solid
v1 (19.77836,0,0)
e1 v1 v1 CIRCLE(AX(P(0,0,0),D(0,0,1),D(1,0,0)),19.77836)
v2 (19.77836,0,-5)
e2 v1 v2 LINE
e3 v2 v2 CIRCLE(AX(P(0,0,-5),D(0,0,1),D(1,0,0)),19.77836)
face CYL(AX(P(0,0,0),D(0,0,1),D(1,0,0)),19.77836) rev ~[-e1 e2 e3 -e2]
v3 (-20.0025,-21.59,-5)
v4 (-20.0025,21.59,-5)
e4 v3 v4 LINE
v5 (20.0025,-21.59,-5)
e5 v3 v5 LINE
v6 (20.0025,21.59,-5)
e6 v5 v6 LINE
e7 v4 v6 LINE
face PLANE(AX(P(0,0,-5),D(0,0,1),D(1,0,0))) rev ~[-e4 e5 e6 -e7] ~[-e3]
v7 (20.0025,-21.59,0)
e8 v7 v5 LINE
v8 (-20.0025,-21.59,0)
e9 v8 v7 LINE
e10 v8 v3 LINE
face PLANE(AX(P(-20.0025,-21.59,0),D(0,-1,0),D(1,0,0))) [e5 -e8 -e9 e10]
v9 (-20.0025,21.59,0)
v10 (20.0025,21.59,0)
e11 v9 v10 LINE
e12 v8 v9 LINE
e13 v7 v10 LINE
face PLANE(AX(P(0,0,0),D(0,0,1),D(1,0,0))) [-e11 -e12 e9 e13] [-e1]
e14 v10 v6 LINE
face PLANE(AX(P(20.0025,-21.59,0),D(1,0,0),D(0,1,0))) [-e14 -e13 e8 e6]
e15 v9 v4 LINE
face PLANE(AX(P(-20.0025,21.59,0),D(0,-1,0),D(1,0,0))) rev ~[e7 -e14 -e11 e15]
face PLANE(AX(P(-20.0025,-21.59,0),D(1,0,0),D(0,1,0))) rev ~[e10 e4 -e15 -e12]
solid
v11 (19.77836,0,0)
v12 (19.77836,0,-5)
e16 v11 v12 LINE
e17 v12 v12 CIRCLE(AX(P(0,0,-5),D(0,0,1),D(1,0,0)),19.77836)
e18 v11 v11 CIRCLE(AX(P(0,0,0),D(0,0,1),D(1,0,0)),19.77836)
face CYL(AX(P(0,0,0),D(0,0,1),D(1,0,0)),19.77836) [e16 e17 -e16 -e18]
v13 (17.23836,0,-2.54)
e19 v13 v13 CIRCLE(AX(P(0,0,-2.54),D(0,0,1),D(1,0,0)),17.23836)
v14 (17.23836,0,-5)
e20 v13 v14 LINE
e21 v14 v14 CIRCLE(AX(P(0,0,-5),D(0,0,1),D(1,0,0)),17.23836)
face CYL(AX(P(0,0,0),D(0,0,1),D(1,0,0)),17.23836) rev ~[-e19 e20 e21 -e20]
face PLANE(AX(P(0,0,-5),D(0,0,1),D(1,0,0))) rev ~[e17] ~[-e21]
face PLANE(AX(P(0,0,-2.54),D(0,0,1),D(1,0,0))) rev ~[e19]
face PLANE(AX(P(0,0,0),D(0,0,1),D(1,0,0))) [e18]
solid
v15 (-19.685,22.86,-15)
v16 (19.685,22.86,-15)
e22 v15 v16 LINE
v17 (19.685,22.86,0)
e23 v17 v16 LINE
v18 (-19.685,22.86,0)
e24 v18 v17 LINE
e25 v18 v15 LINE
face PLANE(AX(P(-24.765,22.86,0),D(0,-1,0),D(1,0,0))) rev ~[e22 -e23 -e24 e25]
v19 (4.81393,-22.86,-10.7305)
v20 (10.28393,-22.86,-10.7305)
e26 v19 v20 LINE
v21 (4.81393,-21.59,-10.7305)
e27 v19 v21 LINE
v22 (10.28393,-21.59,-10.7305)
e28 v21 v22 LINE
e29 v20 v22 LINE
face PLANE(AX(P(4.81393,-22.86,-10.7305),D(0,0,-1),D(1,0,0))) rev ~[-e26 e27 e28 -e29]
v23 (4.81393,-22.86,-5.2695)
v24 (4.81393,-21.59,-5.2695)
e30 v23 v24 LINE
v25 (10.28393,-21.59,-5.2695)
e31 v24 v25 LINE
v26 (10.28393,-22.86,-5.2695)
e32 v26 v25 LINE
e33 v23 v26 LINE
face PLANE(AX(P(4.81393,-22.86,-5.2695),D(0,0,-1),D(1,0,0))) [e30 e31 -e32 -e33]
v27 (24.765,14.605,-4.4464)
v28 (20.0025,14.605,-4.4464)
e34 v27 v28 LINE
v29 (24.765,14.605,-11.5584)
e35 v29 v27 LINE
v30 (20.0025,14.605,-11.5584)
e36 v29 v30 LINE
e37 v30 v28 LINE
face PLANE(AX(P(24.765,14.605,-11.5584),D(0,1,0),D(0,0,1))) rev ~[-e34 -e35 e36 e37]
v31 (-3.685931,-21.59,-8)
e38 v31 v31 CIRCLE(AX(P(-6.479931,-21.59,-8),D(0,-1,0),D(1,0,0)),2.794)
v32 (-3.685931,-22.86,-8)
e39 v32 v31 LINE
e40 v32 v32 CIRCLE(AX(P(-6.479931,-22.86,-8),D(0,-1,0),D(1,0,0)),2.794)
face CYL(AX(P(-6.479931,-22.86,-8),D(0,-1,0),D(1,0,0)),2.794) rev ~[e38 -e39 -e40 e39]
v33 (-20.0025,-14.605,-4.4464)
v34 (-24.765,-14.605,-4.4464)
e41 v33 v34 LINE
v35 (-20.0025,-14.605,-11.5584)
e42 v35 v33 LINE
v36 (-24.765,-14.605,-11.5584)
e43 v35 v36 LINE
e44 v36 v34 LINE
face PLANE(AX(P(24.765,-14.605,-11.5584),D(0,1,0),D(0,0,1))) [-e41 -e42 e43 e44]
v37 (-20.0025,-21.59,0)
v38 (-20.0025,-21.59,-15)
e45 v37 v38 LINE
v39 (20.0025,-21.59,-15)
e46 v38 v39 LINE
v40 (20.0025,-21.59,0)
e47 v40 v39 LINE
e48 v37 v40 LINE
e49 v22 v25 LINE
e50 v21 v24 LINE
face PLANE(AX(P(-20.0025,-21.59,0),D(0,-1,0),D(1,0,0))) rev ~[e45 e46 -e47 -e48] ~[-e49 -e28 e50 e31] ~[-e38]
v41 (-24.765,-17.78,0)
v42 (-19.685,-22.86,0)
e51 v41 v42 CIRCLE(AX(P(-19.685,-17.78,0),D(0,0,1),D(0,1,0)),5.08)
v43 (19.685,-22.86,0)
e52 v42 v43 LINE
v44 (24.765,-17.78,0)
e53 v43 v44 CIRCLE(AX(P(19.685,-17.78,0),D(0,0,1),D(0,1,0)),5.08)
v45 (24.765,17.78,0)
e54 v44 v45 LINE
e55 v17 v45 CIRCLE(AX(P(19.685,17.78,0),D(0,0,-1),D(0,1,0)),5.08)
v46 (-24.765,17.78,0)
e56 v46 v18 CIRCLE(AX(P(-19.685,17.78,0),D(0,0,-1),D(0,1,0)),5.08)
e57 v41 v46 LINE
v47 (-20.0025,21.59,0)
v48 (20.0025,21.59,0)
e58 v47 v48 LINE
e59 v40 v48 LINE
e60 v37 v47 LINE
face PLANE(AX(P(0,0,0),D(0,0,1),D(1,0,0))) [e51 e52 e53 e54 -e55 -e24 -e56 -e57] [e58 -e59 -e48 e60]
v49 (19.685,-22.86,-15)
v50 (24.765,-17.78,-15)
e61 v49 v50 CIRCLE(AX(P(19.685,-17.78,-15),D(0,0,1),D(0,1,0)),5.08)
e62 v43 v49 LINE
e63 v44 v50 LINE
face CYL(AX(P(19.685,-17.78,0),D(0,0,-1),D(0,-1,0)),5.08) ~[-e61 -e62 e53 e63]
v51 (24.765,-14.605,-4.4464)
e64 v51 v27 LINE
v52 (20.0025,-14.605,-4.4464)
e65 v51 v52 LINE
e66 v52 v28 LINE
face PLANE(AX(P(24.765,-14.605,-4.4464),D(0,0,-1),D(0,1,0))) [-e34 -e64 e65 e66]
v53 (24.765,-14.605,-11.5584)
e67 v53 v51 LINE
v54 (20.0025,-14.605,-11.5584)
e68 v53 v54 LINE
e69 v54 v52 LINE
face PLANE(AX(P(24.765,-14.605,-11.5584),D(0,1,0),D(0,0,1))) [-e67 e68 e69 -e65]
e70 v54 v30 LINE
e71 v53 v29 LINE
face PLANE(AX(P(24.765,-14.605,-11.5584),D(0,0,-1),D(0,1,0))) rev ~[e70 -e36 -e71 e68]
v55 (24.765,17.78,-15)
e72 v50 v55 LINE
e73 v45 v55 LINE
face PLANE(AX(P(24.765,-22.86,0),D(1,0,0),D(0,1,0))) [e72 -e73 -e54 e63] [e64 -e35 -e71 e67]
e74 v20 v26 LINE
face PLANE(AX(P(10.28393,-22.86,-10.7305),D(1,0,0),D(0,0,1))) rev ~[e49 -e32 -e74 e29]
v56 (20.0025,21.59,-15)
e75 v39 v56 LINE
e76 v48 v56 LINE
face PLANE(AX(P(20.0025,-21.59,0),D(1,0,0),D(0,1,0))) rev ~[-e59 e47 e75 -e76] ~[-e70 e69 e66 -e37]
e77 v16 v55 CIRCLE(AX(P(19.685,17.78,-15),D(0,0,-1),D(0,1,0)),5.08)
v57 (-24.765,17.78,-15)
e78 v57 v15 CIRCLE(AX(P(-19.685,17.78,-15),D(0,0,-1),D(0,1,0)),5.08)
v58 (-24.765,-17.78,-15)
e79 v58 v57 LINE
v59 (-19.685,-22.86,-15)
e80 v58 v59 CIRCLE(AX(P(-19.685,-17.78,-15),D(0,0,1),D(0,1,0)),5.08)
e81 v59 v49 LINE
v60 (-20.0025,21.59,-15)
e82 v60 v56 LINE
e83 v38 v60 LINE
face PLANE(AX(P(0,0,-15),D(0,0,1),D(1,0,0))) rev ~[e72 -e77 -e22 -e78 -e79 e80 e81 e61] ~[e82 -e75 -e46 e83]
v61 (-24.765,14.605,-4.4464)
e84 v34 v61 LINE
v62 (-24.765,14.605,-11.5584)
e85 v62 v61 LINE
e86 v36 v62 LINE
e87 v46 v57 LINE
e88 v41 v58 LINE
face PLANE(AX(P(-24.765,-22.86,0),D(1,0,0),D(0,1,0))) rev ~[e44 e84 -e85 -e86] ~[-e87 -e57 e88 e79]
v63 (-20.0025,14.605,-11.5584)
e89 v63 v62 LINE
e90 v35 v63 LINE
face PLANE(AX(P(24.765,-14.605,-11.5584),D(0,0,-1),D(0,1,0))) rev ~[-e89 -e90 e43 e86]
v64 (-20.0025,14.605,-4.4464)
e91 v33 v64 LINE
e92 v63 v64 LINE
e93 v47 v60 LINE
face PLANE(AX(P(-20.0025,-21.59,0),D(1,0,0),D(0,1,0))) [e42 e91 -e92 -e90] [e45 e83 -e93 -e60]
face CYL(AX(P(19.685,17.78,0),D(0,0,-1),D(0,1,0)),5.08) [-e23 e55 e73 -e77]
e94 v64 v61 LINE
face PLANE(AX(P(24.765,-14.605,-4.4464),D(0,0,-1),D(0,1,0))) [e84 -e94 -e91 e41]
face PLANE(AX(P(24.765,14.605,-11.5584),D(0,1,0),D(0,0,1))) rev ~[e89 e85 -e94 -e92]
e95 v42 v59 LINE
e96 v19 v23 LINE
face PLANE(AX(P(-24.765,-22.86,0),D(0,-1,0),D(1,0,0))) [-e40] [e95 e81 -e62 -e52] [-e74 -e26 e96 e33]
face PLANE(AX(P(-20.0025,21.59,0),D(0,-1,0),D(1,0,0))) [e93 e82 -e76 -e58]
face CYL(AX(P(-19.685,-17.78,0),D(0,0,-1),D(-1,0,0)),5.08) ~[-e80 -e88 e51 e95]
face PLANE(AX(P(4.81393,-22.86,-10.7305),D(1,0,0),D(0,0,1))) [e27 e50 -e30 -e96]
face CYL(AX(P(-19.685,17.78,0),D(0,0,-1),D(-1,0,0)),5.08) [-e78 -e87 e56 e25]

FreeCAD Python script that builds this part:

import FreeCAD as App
import Part
import Sketcher

V = App.Vector
Q = App.Units.Quantity


def edges_at(feature, points):
    """Names of the edges that pass closest to the given points."""
    edges = feature.Shape.Edges
    near = lambda p: min(range(len(edges)), key=lambda i: edges[i].distToShape(Part.Vertex(*p))[0])
    return sorted({f"Edge{near(p) + 1}" for p in points})


def faces_at(feature, points):
    """Names of the faces that lie closest to the given points."""
    faces = feature.Shape.Faces
    near = lambda p: min(range(len(faces)), key=lambda i: faces[i].distToShape(Part.Vertex(*p))[0])
    return sorted({f"Face{near(p) + 1}" for p in points})


def add_polygon(sketch, points):
    """Adds a closed chain of lines whose ends are joined by coincident constraints."""
    first, n = sketch.GeometryCount, len(points)
    for a, b in zip(points, points[1:] + points[:1]):
        sketch.addGeometry(Part.LineSegment(App.Vector(*a, 0), App.Vector(*b, 0)), False)
    for i in range(n):
        sketch.addConstraint(Sketcher.Constraint("Coincident", first + i, 2, first + (i + 1) % n, 1))

doc = App.newDocument("Part")
body = doc.addObject("PartDesign::Body", "Body")

# Sketch on XY plane
sketch1 = doc.addObject("Sketcher::SketchObject", "Sketch")
body.addObject(sketch1)
sketch1.AttachmentSupport = (doc.XY_Plane, [""])
sketch1.MapMode = "FlatFace"
add_polygon(sketch1, [(-20, 22), (-20, -22), (20, -22), (20, 22)])  # lines 0-3
sketch1.addGeometry(Part.Circle(V(0, 0, 0), V(0, 0, 1), 20), False)  # 4
sketch1.addConstraint([
    Sketcher.Constraint("Vertical", 0),
    Sketcher.Constraint("Horizontal", 1),
    Sketcher.Constraint("Vertical", 2),
    Sketcher.Constraint("Horizontal", 3),
    Sketcher.Constraint("Coincident", 4, 3, -1, 1),
    Sketcher.Constraint("Symmetric", 0, 2, 2, 2, -1, 1),
    Sketcher.Constraint("DistanceY", 0, 2, 0, 1, Q("1.7 in")),
    Sketcher.Constraint("DistanceX", 1, 1, 1, 2, Q("1.575 in")),
    Sketcher.Constraint("Diameter", 4, 39.55672),
])
pad1 = doc.addObject("PartDesign::Pad", "Pad")
body.addObject(pad1)
pad1.Profile = sketch1
pad1.Length = 5
pad1.Reversed = True
body2 = doc.addObject("PartDesign::Body", "Body001")

# Sketch on XY plane
sketch2 = doc.addObject("Sketcher::SketchObject", "Sketch001")
body2.addObject(sketch2)
sketch2.AttachmentSupport = (doc.getObject("XY_Plane001"), [""])
sketch2.MapMode = "FlatFace"
sketch2.addGeometry(Part.Circle(V(0, 0, 0), V(0, 0, 1), 20), False)
sketch2.addConstraint([
    Sketcher.Constraint("Coincident", 0, 3, -1, 1),
    Sketcher.Constraint("Diameter", 0, 39.55672),
])
pad2 = doc.addObject("PartDesign::Pad", "Pad001")
body2.addObject(pad2)
pad2.Profile = sketch2
pad2.Length = 5
pad2.Reversed = True
doc.recompute()

thickness = doc.addObject("PartDesign::Thickness", "Thickness")
body2.addObject(thickness)
thickness.Base = (pad2, faces_at(pad2, [(0, 0, -5)]))
thickness.Value = Q("0.1 in")
thickness.Reversed = True
thickness.Join = "Arc"
body3 = doc.addObject("PartDesign::Body", "Body002")

# Sketch on XY plane
sketch3 = doc.addObject("Sketcher::SketchObject", "Sketch002")
body3.addObject(sketch3)
sketch3.AttachmentSupport = (doc.getObject("XY_Plane002"), [""])
sketch3.MapMode = "FlatFace"
add_polygon(sketch3, [(-25, 23), (-25, -23), (25, -23), (25, 23)])  # lines 0-3
add_polygon(sketch3, [(20, -22), (-20, -22), (-20, 22), (20, 22)])  # lines 4-7
sketch3.addConstraint([
    Sketcher.Constraint("Vertical", 0),
    Sketcher.Constraint("Horizontal", 1),
    Sketcher.Constraint("Vertical", 2),
    Sketcher.Constraint("Horizontal", 3),
    Sketcher.Constraint("Horizontal", 4),
    Sketcher.Constraint("Vertical", 5),
    Sketcher.Constraint("Horizontal", 6),
    Sketcher.Constraint("Vertical", 7),
    Sketcher.Constraint("Symmetric", 0, 2, 2, 2, -1, 1),
    Sketcher.Constraint("Symmetric", 4, 2, 6, 2, -1, 1),
    Sketcher.Constraint("DistanceY", 0, 2, 0, 1, Q("1.8 in")),
    Sketcher.Constraint("DistanceY", 5, 1, 5, 2, Q("1.7 in")),
    Sketcher.Constraint("DistanceX", 1, 1, 1, 2, Q("1.95 in")),
    Sketcher.Constraint("DistanceX", 4, 2, 4, 1, Q("1.575 in")),
])
pad3 = doc.addObject("PartDesign::Pad", "Pad002")
body3.addObject(pad3)
pad3.Profile = sketch3
pad3.Length = 15
pad3.Reversed = True
doc.recompute()

fillet = doc.addObject("PartDesign::Fillet", "Fillet")
body3.addObject(fillet)
fillet.Base = (pad3, edges_at(pad3, [
    (-24.765, -22.86, -7.5),
    (24.765, -22.86, -7.5),
    (24.765, 22.86, -7.5),
    (-24.765, 22.86, -7.5),
]))
fillet.Radius = Q("0.2 in")

# Sketch on XZ plane
sketch4 = doc.addObject("Sketcher::SketchObject", "Sketch003")
body3.addObject(sketch4)
sketch4.AttachmentSupport = (doc.getObject("XZ_Plane002"), [""])
sketch4.MapMode = "FlatFace"
sketch4.AttachmentOffset = App.Placement(V(0, 0, 0.9 * 25.4), App.Rotation())
add_polygon(sketch4, [(4.8, -5.3), (4.8, -10.7), (10.3, -10.7), (10.3, -5.3)])  # lines 0-3
sketch4.addGeometry(Part.Circle(V(-6.5, -8, 0), V(0, 0, 1), 2.8), False)  # 4
sketch4.addConstraint([
    Sketcher.Constraint("Vertical", 0),
    Sketcher.Constraint("Horizontal", 1),
    Sketcher.Constraint("Vertical", 2),
    Sketcher.Constraint("Horizontal", 3),
    Sketcher.Constraint("Diameter", 4, Q("0.22 in")),
    Sketcher.Constraint("DistanceY", 0, 2, 0, 1, Q("0.215 in")),
    Sketcher.Constraint("DistanceX", 1, 1, 1, 2, 5.47),
    Sketcher.Constraint("DistanceY", 0, 2, 4, 3, Q("0.1075 in")),
    Sketcher.Constraint("DistanceY", 4, 3, -1, 1, 8.0),
    Sketcher.Constraint("DistanceX", 4, 3, -1, 1, 6.479931),
    Sketcher.Constraint("DistanceX", -1, 1, 0, 2, 4.81393),
])
pocket1 = doc.addObject("PartDesign::Pocket", "Pocket")
body3.addObject(pocket1)
pocket1.Profile = sketch4
pocket1.Length = Q("0.665 in")

# Sketch on YZ plane
sketch5 = doc.addObject("Sketcher::SketchObject", "Sketch004")
body3.addObject(sketch5)
sketch5.AttachmentSupport = (doc.getObject("YZ_Plane002"), [""])
sketch5.MapMode = "FlatFace"
sketch5.AttachmentOffset = App.Placement(V(0, 0, 0.975 * 25.4), App.Rotation())
add_polygon(sketch5, [(-15, -4), (-15, -12), (15, -12), (15, -4)])  # lines 0-3
sketch5.addConstraint([
    Sketcher.Constraint("Vertical", 0),
    Sketcher.Constraint("Horizontal", 1),
    Sketcher.Constraint("Vertical", 2),
    Sketcher.Constraint("Horizontal", 3),
    Sketcher.Constraint("DistanceX", 1, 1, 1, 2, Q("1.15 in")),
    Sketcher.Constraint("DistanceY", 0, 2, 0, 1, Q("0.28 in")),
    Sketcher.Constraint("DistanceX", 0, 2, -1, 1, Q("0.575 in")),
    Sketcher.Constraint("DistanceY", 0, 2, -1, 1, 11.5584),
])
pocket2 = doc.addObject("PartDesign::Pocket", "Pocket001")
body3.addObject(pocket2)
pocket2.Profile = sketch5
pocket2.Length = Q("2.19 in")

doc.recompute()
